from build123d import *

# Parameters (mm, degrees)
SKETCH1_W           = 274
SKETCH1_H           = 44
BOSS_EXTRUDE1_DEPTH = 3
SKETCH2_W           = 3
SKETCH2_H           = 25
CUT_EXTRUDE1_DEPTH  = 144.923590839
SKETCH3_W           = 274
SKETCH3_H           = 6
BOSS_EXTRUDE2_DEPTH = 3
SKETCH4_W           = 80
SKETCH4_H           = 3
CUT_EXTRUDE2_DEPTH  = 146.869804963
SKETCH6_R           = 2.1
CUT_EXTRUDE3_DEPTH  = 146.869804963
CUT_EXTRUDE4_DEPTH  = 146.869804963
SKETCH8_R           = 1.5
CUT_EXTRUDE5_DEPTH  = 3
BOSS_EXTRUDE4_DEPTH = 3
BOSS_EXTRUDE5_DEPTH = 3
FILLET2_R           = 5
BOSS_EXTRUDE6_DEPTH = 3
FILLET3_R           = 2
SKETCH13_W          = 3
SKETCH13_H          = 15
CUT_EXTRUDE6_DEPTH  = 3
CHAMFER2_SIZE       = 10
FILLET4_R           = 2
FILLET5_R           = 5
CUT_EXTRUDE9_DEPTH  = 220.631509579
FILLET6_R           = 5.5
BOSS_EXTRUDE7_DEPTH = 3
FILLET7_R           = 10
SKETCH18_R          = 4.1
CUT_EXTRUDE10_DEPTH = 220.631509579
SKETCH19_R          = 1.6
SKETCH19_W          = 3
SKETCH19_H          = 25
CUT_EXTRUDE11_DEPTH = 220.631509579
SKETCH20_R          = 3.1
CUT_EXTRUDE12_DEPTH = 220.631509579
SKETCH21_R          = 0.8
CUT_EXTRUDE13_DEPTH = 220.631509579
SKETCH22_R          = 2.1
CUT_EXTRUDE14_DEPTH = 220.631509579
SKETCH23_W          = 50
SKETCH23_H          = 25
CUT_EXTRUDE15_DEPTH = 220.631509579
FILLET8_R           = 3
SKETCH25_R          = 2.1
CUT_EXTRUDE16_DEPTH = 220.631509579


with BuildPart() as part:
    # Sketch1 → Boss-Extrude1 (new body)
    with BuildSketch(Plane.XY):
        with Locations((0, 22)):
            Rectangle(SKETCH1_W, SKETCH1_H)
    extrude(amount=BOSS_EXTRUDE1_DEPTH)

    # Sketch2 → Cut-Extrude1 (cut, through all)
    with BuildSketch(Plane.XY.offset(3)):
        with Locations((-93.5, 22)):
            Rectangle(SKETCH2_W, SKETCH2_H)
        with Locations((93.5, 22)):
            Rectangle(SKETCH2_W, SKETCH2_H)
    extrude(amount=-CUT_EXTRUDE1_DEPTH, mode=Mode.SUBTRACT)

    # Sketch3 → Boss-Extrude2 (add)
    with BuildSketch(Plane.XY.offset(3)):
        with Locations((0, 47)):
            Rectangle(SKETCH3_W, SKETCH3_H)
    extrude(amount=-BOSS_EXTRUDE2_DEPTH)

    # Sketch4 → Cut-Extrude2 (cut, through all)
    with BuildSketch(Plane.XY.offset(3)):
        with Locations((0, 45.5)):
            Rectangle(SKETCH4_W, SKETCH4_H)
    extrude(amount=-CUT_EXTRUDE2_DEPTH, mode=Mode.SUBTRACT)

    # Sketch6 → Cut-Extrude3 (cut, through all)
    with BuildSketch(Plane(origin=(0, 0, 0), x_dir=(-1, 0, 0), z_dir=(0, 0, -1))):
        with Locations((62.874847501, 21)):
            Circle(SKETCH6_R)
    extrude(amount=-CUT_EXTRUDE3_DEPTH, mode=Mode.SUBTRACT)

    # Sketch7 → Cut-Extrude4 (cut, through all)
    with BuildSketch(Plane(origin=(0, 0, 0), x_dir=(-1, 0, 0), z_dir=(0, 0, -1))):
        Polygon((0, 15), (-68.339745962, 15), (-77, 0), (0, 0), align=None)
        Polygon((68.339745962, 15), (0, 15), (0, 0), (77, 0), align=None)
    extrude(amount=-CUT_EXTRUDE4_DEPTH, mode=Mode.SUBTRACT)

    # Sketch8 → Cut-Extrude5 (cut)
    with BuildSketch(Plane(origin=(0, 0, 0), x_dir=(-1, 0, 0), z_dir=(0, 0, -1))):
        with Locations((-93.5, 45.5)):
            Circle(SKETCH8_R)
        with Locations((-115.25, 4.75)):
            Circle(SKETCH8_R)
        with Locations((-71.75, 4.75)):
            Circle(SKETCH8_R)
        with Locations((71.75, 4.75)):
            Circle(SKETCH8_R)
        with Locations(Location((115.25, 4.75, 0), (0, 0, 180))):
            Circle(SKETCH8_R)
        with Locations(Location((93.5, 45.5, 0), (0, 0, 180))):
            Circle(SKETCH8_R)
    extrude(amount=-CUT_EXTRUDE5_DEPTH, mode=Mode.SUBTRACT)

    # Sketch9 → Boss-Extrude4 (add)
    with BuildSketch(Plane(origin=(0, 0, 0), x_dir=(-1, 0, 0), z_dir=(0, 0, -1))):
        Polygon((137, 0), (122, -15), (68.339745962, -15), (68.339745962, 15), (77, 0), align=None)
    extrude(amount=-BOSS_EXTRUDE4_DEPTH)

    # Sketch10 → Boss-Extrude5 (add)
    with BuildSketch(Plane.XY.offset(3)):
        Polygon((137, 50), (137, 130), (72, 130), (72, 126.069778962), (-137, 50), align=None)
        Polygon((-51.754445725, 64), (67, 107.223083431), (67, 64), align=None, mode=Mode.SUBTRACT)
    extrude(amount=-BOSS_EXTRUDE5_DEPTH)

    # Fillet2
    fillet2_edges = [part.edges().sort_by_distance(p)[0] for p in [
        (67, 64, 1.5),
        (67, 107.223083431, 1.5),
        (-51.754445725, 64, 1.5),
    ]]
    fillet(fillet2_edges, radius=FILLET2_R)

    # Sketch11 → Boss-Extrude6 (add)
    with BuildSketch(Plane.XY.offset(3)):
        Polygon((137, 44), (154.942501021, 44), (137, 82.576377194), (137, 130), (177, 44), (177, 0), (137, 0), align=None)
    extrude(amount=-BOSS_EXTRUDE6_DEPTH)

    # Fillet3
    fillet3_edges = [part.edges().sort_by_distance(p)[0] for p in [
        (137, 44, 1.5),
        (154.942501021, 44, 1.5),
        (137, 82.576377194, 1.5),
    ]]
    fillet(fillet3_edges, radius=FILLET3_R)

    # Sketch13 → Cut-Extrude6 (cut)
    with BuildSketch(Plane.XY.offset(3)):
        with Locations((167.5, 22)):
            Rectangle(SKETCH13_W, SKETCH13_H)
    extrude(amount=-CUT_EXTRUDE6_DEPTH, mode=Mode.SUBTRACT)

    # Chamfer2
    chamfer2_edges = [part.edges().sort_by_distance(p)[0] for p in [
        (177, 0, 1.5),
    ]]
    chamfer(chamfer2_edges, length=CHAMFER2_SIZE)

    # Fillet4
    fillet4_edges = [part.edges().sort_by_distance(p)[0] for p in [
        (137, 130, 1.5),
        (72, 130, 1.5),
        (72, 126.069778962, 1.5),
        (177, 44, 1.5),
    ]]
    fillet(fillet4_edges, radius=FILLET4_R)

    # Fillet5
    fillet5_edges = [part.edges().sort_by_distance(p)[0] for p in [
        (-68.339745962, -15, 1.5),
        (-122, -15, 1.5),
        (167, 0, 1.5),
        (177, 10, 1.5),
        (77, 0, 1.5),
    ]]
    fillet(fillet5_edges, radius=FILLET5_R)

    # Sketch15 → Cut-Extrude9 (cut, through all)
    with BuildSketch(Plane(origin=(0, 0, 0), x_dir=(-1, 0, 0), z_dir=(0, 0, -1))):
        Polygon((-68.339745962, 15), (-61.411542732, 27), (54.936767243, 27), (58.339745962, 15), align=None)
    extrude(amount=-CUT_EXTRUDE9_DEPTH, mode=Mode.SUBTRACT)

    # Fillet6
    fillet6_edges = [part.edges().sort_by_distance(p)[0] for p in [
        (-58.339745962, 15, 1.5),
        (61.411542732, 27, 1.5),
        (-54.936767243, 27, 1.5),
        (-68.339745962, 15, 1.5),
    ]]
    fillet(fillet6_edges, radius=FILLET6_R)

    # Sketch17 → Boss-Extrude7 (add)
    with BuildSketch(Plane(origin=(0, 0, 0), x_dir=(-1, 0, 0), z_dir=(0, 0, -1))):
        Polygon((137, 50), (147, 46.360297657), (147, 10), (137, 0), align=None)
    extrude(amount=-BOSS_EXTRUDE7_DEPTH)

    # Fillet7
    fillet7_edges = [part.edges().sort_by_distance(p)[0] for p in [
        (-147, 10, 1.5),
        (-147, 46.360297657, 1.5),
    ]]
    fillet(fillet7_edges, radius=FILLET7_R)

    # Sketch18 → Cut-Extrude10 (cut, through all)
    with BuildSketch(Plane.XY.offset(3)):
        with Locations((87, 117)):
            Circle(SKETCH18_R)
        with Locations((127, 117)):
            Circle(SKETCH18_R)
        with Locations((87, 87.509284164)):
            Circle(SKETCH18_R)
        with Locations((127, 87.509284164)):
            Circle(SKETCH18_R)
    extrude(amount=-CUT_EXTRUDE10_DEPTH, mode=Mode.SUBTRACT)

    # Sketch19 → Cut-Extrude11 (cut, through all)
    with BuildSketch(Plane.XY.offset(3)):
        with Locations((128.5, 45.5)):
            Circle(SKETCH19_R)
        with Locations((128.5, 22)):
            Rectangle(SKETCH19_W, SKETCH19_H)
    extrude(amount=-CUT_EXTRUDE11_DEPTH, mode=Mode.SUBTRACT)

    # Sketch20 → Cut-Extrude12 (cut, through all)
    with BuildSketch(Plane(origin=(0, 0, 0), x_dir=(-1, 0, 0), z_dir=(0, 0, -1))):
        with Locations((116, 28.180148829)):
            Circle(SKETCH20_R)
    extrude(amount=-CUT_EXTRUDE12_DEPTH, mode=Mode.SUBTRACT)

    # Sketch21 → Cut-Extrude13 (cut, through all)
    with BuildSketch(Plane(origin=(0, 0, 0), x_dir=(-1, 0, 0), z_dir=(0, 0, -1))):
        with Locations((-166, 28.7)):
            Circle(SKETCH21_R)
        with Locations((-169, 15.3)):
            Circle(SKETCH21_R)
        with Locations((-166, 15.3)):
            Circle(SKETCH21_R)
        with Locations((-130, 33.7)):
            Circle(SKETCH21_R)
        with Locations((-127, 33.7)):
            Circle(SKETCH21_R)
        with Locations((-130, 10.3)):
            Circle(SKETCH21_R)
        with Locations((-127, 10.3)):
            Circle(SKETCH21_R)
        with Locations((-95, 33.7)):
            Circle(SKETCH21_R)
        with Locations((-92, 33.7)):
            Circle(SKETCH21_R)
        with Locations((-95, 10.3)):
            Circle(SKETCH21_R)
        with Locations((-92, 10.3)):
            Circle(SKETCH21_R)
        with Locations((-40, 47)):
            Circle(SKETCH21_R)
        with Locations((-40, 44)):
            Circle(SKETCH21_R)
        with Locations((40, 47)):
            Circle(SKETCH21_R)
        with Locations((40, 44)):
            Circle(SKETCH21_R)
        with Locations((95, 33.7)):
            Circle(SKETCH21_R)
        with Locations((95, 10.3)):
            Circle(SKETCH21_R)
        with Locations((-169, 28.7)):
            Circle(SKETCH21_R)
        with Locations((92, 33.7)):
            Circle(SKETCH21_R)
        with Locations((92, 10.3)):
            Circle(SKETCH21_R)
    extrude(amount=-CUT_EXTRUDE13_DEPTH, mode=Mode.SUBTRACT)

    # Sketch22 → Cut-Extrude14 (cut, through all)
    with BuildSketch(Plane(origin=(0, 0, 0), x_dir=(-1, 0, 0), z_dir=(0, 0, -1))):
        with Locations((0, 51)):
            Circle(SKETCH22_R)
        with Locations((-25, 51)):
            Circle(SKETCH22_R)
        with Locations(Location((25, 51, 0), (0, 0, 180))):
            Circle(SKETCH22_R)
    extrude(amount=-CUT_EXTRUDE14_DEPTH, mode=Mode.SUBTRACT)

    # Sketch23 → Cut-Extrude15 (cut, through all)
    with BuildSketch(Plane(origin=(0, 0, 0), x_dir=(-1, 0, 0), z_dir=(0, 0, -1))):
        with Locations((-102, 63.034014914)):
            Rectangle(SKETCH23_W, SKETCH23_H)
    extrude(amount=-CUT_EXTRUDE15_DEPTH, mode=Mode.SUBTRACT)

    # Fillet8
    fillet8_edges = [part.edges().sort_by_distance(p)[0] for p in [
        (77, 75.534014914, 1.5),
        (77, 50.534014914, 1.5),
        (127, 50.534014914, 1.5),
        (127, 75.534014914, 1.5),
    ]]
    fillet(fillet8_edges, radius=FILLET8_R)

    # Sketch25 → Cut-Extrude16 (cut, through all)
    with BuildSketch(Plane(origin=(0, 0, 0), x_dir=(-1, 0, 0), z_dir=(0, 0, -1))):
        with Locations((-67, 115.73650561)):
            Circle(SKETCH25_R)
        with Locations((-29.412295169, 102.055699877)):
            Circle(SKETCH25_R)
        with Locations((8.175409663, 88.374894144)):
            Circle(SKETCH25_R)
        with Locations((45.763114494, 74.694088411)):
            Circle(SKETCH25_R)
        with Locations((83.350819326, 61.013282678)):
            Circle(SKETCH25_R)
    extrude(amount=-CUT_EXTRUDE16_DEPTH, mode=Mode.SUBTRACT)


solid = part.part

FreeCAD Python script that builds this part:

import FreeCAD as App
import Part
import Sketcher

V = App.Vector
Q = App.Units.Quantity


def edges_at(feature, points):
    """Names of the edges that pass closest to the given points."""
    edges = feature.Shape.Edges
    near = lambda p: min(range(len(edges)), key=lambda i: edges[i].distToShape(Part.Vertex(*p))[0])
    return sorted({f"Edge{near(p) + 1}" for p in points})

doc = App.newDocument("Part")
body = doc.addObject("PartDesign::Body", "Body")

# Sketch on XY plane
sketch1 = doc.addObject("Sketcher::SketchObject", "Sketch")
body.addObject(sketch1)
sketch1.AttachmentSupport = (doc.XY_Plane, [""])
sketch1.MapMode = "FlatFace"
sketch1.addGeometry(Part.LineSegment(V(-137, 44, 0), V(-137, 0, 0)), False)
sketch1.addGeometry(Part.LineSegment(V(-137, 0, 0), V(137, 0, 0)), False)
sketch1.addGeometry(Part.LineSegment(V(137, 0, 0), V(137, 44, 0)), False)
sketch1.addGeometry(Part.LineSegment(V(137, 44, 0), V(-137, 44, 0)), False)
sketch1.addConstraint(Sketcher.Constraint("Coincident", 0, 2, 1, 1))
sketch1.addConstraint(Sketcher.Constraint("Coincident", 1, 2, 2, 1))
sketch1.addConstraint(Sketcher.Constraint("Coincident", 2, 2, 3, 1))
sketch1.addConstraint(Sketcher.Constraint("Coincident", 3, 2, 0, 1))
sketch1.addConstraint(Sketcher.Constraint("Vertical", 0))
sketch1.addConstraint(Sketcher.Constraint("Horizontal", 1))
sketch1.addConstraint(Sketcher.Constraint("Vertical", 2))
sketch1.addConstraint(Sketcher.Constraint("Horizontal", 3))
sketch1.addConstraint(Sketcher.Constraint("Symmetric", 0, 2, 1, 2, -1, 1))
sketch1.addConstraint(Sketcher.Constraint("DistanceX", 1, 1, 1, 2, 274.0))
sketch1.addConstraint(Sketcher.Constraint("DistanceY", 0, 2, 0, 1, 44.0))
pad1 = doc.addObject("PartDesign::Pad", "Pad")
body.addObject(pad1)
pad1.Profile = sketch1
pad1.Length = 3

# Sketch on XY plane
sketch2 = doc.addObject("Sketcher::SketchObject", "Sketch001")
body.addObject(sketch2)
sketch2.AttachmentSupport = (doc.XY_Plane, [""])
sketch2.MapMode = "FlatFace"
sketch2.AttachmentOffset = App.Placement(V(0, 0, 3), App.Rotation())
sketch2.addGeometry(Part.LineSegment(V(-95, 34.5, 0), V(-95, 9.5, 0)), False)
sketch2.addGeometry(Part.LineSegment(V(-95, 9.5, 0), V(-92, 9.5, 0)), False)
sketch2.addGeometry(Part.LineSegment(V(-92, 9.5, 0), V(-92, 34.5, 0)), False)
sketch2.addGeometry(Part.LineSegment(V(-92, 34.5, 0), V(-95, 34.5, 0)), False)
sketch2.addGeometry(Part.LineSegment(V(92, 34.5, 0), V(92, 9.5, 0)), False)
sketch2.addGeometry(Part.LineSegment(V(92, 9.5, 0), V(95, 9.5, 0)), False)
sketch2.addGeometry(Part.LineSegment(V(95, 9.5, 0), V(95, 34.5, 0)), False)
sketch2.addGeometry(Part.LineSegment(V(95, 34.5, 0), V(92, 34.5, 0)), False)
sketch2.addConstraint(Sketcher.Constraint("Coincident", 0, 2, 1, 1))
sketch2.addConstraint(Sketcher.Constraint("Coincident", 1, 2, 2, 1))
sketch2.addConstraint(Sketcher.Constraint("Coincident", 2, 2, 3, 1))
sketch2.addConstraint(Sketcher.Constraint("Coincident", 3, 2, 0, 1))
sketch2.addConstraint(Sketcher.Constraint("Coincident", 4, 2, 5, 1))
sketch2.addConstraint(Sketcher.Constraint("Coincident", 5, 2, 6, 1))
sketch2.addConstraint(Sketcher.Constraint("Coincident", 6, 2, 7, 1))
sketch2.addConstraint(Sketcher.Constraint("Coincident", 7, 2, 4, 1))
sketch2.addConstraint(Sketcher.Constraint("Vertical", 0))
sketch2.addConstraint(Sketcher.Constraint("Horizontal", 1))
sketch2.addConstraint(Sketcher.Constraint("Vertical", 2))
sketch2.addConstraint(Sketcher.Constraint("Horizontal", 3))
sketch2.addConstraint(Sketcher.Constraint("Vertical", 4))
sketch2.addConstraint(Sketcher.Constraint("Horizontal", 5))
sketch2.addConstraint(Sketcher.Constraint("Vertical", 6))
sketch2.addConstraint(Sketcher.Constraint("Horizontal", 7))
sketch2.addConstraint(Sketcher.Constraint("Symmetric", 1, 2, 4, 2, -2))
sketch2.addConstraint(Sketcher.Constraint("Symmetric", 3, 2, 6, 2, -2))
sketch2.addConstraint(Sketcher.Constraint("DistanceX", 1, 1, 1, 2, 3.0))
sketch2.addConstraint(Sketcher.Constraint("DistanceY", 0, 2, 0, 1, 25.0))
sketch2.addConstraint(Sketcher.Constraint("DistanceX", 0, 2, -1, 1, 95.0))
sketch2.addConstraint(Sketcher.Constraint("DistanceY", -1, 1, 0, 2, 9.5))
pocket1 = doc.addObject("PartDesign::Pocket", "Pocket")
body.addObject(pocket1)
pocket1.Profile = sketch2
pocket1.Type = "ThroughAll"

# Sketch on XY plane
sketch3 = doc.addObject("Sketcher::SketchObject", "Sketch002")
body.addObject(sketch3)
sketch3.AttachmentSupport = (doc.XY_Plane, [""])
sketch3.MapMode = "FlatFace"
sketch3.AttachmentOffset = App.Placement(V(0, 0, 3), App.Rotation())
sketch3.addGeometry(Part.LineSegment(V(-137, 50, 0), V(-137, 44, 0)), False)
sketch3.addGeometry(Part.LineSegment(V(-137, 44, 0), V(137, 44, 0)), False)
sketch3.addGeometry(Part.LineSegment(V(137, 44, 0), V(137, 50, 0)), False)
sketch3.addGeometry(Part.LineSegment(V(137, 50, 0), V(-137, 50, 0)), False)
sketch3.addConstraint(Sketcher.Constraint("Coincident", 0, 2, 1, 1))
sketch3.addConstraint(Sketcher.Constraint("Coincident", 1, 2, 2, 1))
sketch3.addConstraint(Sketcher.Constraint("Coincident", 2, 2, 3, 1))
sketch3.addConstraint(Sketcher.Constraint("Coincident", 3, 2, 0, 1))
sketch3.addConstraint(Sketcher.Constraint("Vertical", 0))
sketch3.addConstraint(Sketcher.Constraint("Horizontal", 1))
sketch3.addConstraint(Sketcher.Constraint("Vertical", 2))
sketch3.addConstraint(Sketcher.Constraint("Horizontal", 3))
sketch3.addConstraint(Sketcher.Constraint("DistanceX", 1, 1, 1, 2, 274.0))
sketch3.addConstraint(Sketcher.Constraint("DistanceY", 0, 2, 0, 1, 6.0))
sketch3.addConstraint(Sketcher.Constraint("DistanceX", 0, 2, -1, 1, 137.0))
sketch3.addConstraint(Sketcher.Constraint("DistanceY", -1, 1, 0, 2, 44.0))
pad2 = doc.addObject("PartDesign::Pad", "Pad001")
body.addObject(pad2)
pad2.Profile = sketch3
pad2.Length = 3
pad2.Reversed = True

# Sketch on XY plane
sketch4 = doc.addObject("Sketcher::SketchObject", "Sketch003")
body.addObject(sketch4)
sketch4.AttachmentSupport = (doc.XY_Plane, [""])
sketch4.MapMode = "FlatFace"
sketch4.AttachmentOffset = App.Placement(V(0, 0, 3), App.Rotation())
sketch4.addGeometry(Part.LineSegment(V(-40, 47, 0), V(-40, 44, 0)), False)
sketch4.addGeometry(Part.LineSegment(V(-40, 44, 0), V(40, 44, 0)), False)
sketch4.addGeometry(Part.LineSegment(V(40, 44, 0), V(40, 47, 0)), False)
sketch4.addGeometry(Part.LineSegment(V(40, 47, 0), V(-40, 47, 0)), False)
sketch4.addConstraint(Sketcher.Constraint("Coincident", 0, 2, 1, 1))
sketch4.addConstraint(Sketcher.Constraint("Coincident", 1, 2, 2, 1))
sketch4.addConstraint(Sketcher.Constraint("Coincident", 2, 2, 3, 1))
sketch4.addConstraint(Sketcher.Constraint("Coincident", 3, 2, 0, 1))
sketch4.addConstraint(Sketcher.Constraint("Vertical", 0))
sketch4.addConstraint(Sketcher.Constraint("Horizontal", 1))
sketch4.addConstraint(Sketcher.Constraint("Vertical", 2))
sketch4.addConstraint(Sketcher.Constraint("Horizontal", 3))
sketch4.addConstraint(Sketcher.Constraint("DistanceX", 1, 1, 1, 2, 80.0))
sketch4.addConstraint(Sketcher.Constraint("DistanceY", 0, 2, 0, 1, 3.0))
sketch4.addConstraint(Sketcher.Constraint("DistanceX", 0, 2, -1, 1, 40.0))
sketch4.addConstraint(Sketcher.Constraint("DistanceY", -1, 1, 0, 2, 44.0))
pocket2 = doc.addObject("PartDesign::Pocket", "Pocket001")
body.addObject(pocket2)
pocket2.Profile = sketch4
pocket2.Type = "ThroughAll"

# Sketch on XY plane
sketch5 = doc.addObject("Sketcher::SketchObject", "Sketch004")
body.addObject(sketch5)
sketch5.AttachmentSupport = (doc.XY_Plane, [""])
sketch5.MapMode = "FlatFace"
sketch5.addGeometry(Part.Circle(V(-62.874848, 21, 0), V(0, 0, 1), 2.1), False)
sketch5.addConstraint(Sketcher.Constraint("Diameter", 0, 4.2))
sketch5.addConstraint(Sketcher.Constraint("DistanceY", -1, 1, 0, 3, 21.0))
sketch5.addConstraint(Sketcher.Constraint("DistanceX", 0, 3, -1, 1, 62.874848))
pocket3 = doc.addObject("PartDesign::Pocket", "Pocket002")
body.addObject(pocket3)
pocket3.Profile = sketch5
pocket3.Type = "ThroughAll"
pocket3.Reversed = True

# Sketch on XY plane
sketch6 = doc.addObject("Sketcher::SketchObject", "Sketch005")
body.addObject(sketch6)
sketch6.AttachmentSupport = (doc.XY_Plane, [""])
sketch6.MapMode = "FlatFace"
sketch6.addGeometry(Part.LineSegment(V(68.339746, 15, 0), V(77, 0, 0)), False)
sketch6.addGeometry(Part.LineSegment(V(77, 0, 0), V(-77, 0, 0)), False)
sketch6.addGeometry(Part.LineSegment(V(-77, 0, 0), V(-68.339746, 15, 0)), False)
sketch6.addGeometry(Part.LineSegment(V(-68.339746, 15, 0), V(68.339746, 15, 0)), False)
sketch6.addConstraint(Sketcher.Constraint("Coincident", 0, 2, 1, 1))
sketch6.addConstraint(Sketcher.Constraint("Coincident", 1, 2, 2, 1))
sketch6.addConstraint(Sketcher.Constraint("Coincident", 2, 2, 3, 1))
sketch6.addConstraint(Sketcher.Constraint("Coincident", 3, 2, 0, 1))
sketch6.addConstraint(Sketcher.Constraint("Horizontal", 1))
sketch6.addConstraint(Sketcher.Constraint("Horizontal", 3))
sketch6.addConstraint(Sketcher.Constraint("Symmetric", 0, 2, 1, 2, -1, 1))
sketch6.addConstraint(Sketcher.Constraint("Equal", 0, 2))
sketch6.addConstraint(Sketcher.Constraint("DistanceX", 1, 2, 1, 1, 154.0))
sketch6.addConstraint(Sketcher.Constraint("Angle", 0, Q("-60 deg")))
sketch6.addConstraint(Sketcher.Constraint("DistanceY", -1, 1, 2, 2, 15.0))
pocket4 = doc.addObject("PartDesign::Pocket", "Pocket003")
body.addObject(pocket4)
pocket4.Profile = sketch6
pocket4.Type = "ThroughAll"
pocket4.Reversed = True

# Sketch on XY plane
sketch7 = doc.addObject("Sketcher::SketchObject", "Sketch006")
body.addObject(sketch7)
sketch7.AttachmentSupport = (doc.XY_Plane, [""])
sketch7.MapMode = "FlatFace"
sketch7.addGeometry(Part.Circle(V(93.5, 45.5, 0), V(0, 0, 1), 1.5), False)
sketch7.addGeometry(Part.Circle(V(115.25, 4.75, 0), V(0, 0, 1), 1.5), False)
sketch7.addGeometry(Part.Circle(V(71.75, 4.75, 0), V(0, 0, 1), 1.5), False)
sketch7.addGeometry(Part.Circle(V(-71.75, 4.75, 0), V(0, 0, 1), 1.5), False)
sketch7.addGeometry(Part.Circle(V(-115.25, 4.75, 0), V(0, 0, 1), 1.5), False)
sketch7.addGeometry(Part.Circle(V(-93.5, 45.5, 0), V(0, 0, 1), 1.5), False)
sketch7.addConstraint(Sketcher.Constraint("Equal", 0, 1))
sketch7.addConstraint(Sketcher.Constraint("Equal", 1, 2))
sketch7.addConstraint(Sketcher.Constraint("Equal", 2, 3))
sketch7.addConstraint(Sketcher.Constraint("Equal", 3, 4))
sketch7.addConstraint(Sketcher.Constraint("Equal", 4, 5))
sketch7.addConstraint(Sketcher.Constraint("Symmetric", 2, 3, 3, 3, -2))
sketch7.addConstraint(Sketcher.Constraint("Symmetric", 1, 3, 4, 3, -2))
sketch7.addConstraint(Sketcher.Constraint("Symmetric", 0, 3, 5, 3, -2))
sketch7.addConstraint(Sketcher.Constraint("Horizontal", 1, 3, 2, 3))
sketch7.addConstraint(Sketcher.Constraint("Diameter", 0, 3.0))
sketch7.addConstraint(Sketcher.Constraint("DistanceX", 3, 3, 1, 3, 187.0))
sketch7.addConstraint(Sketcher.Constraint("DistanceX", 5, 3, 0, 3, 187.0))
sketch7.addConstraint(Sketcher.Constraint("DistanceY", -1, 1, 0, 3, 45.5))
sketch7.addConstraint(Sketcher.Constraint("DistanceX", 2, 3, 1, 3, 43.5))
sketch7.addConstraint(Sketcher.Constraint("DistanceY", -1, 1, 1, 3, 4.75))
pocket5 = doc.addObject("PartDesign::Pocket", "Pocket004")
body.addObject(pocket5)
pocket5.Profile = sketch7
pocket5.Length = 3
pocket5.Reversed = True

# Sketch on XY plane
sketch8 = doc.addObject("Sketcher::SketchObject", "Sketch007")
body.addObject(sketch8)
sketch8.AttachmentSupport = (doc.XY_Plane, [""])
sketch8.MapMode = "FlatFace"
sketch8.addGeometry(Part.LineSegment(V(-122, -15, 0), V(-137, 0, 0)), False)
sketch8.addGeometry(Part.LineSegment(V(-137, 0, 0), V(-77, 0, 0)), False)
sketch8.addGeometry(Part.LineSegment(V(-77, 0, 0), V(-68.339746, 15, 0)), False)
sketch8.addGeometry(Part.LineSegment(V(-68.339746, 15, 0), V(-68.339746, -15, 0)), False)
sketch8.addGeometry(Part.LineSegment(V(-68.339746, -15, 0), V(-122, -15, 0)), False)
sketch8.addConstraint(Sketcher.Constraint("Coincident", 0, 2, 1, 1))
sketch8.addConstraint(Sketcher.Constraint("Coincident", 1, 2, 2, 1))
sketch8.addConstraint(Sketcher.Constraint("Coincident", 2, 2, 3, 1))
sketch8.addConstraint(Sketcher.Constraint("Coincident", 3, 2, 4, 1))
sketch8.addConstraint(Sketcher.Constraint("Coincident", 4, 2, 0, 1))
sketch8.addConstraint(Sketcher.Constraint("Horizontal", 1))
sketch8.addConstraint(Sketcher.Constraint("Vertical", 3))
sketch8.addConstraint(Sketcher.Constraint("Horizontal", 4))
sketch8.addConstraint(Sketcher.Constraint("PointOnObject", 0, 2, -1))
sketch8.addConstraint(Sketcher.Constraint("DistanceX", 1, 1, 1, 2, 60.0))
sketch8.addConstraint(Sketcher.Constraint("DistanceY", 3, 2, 3, 1, 30.0))
sketch8.addConstraint(Sketcher.Constraint("Angle", 0, Q("135 deg")))
sketch8.addConstraint(Sketcher.Constraint("Angle", 2, Q("60 deg")))
sketch8.addConstraint(Sketcher.Constraint("DistanceX", 0, 2, -1, 1, 137.0))
sketch8.addConstraint(Sketcher.Constraint("DistanceY", -1, 1, 2, 2, 15.0))
pad3 = doc.addObject("PartDesign::Pad", "Pad002")
body.addObject(pad3)
pad3.Profile = sketch8
pad3.Length = 3

# Sketch on XY plane
sketch9 = doc.addObject("Sketcher::SketchObject", "Sketch008")
body.addObject(sketch9)
sketch9.AttachmentSupport = (doc.XY_Plane, [""])
sketch9.MapMode = "FlatFace"
sketch9.AttachmentOffset = App.Placement(V(0, 0, 3), App.Rotation())
sketch9.addGeometry(Part.LineSegment(V(137, 50, 0), V(137, 130, 0)), False)
sketch9.addGeometry(Part.LineSegment(V(137, 130, 0), V(72, 130, 0)), False)
sketch9.addGeometry(Part.LineSegment(V(72, 130, 0), V(72, 126.069779, 0)), False)
sketch9.addGeometry(Part.LineSegment(V(72, 126.069779, 0), V(-137, 50, 0)), False)
sketch9.addGeometry(Part.LineSegment(V(-137, 50, 0), V(137, 50, 0)), False)
sketch9.addGeometry(Part.LineSegment(V(67, 64, 0), V(-51.754446, 64, 0)), False)
sketch9.addGeometry(Part.LineSegment(V(-51.754446, 64, 0), V(67, 107.223083, 0)), False)
sketch9.addGeometry(Part.LineSegment(V(67, 107.223083, 0), V(67, 64, 0)), False)
sketch9.addConstraint(Sketcher.Constraint("Coincident", 0, 2, 1, 1))
sketch9.addConstraint(Sketcher.Constraint("Coincident", 1, 2, 2, 1))
sketch9.addConstraint(Sketcher.Constraint("Coincident", 2, 2, 3, 1))
sketch9.addConstraint(Sketcher.Constraint("Coincident", 3, 2, 4, 1))
sketch9.addConstraint(Sketcher.Constraint("Coincident", 4, 2, 0, 1))
sketch9.addConstraint(Sketcher.Constraint("Coincident", 5, 2, 6, 1))
sketch9.addConstraint(Sketcher.Constraint("Coincident", 6, 2, 7, 1))
sketch9.addConstraint(Sketcher.Constraint("Coincident", 7, 2, 5, 1))
sketch9.addConstraint(Sketcher.Constraint("Vertical", 0))
sketch9.addConstraint(Sketcher.Constraint("Horizontal", 1))
sketch9.addConstraint(Sketcher.Constraint("Vertical", 2))
sketch9.addConstraint(Sketcher.Constraint("Horizontal", 4))
sketch9.addConstraint(Sketcher.Constraint("Horizontal", 5))
sketch9.addConstraint(Sketcher.Constraint("Vertical", 7))
sketch9.addConstraint(Sketcher.Constraint("Parallel", 3, 6))
sketch9.addConstraint(Sketcher.Constraint("DistanceX", 1, 2, 1, 1, 65.0))
sketch9.addConstraint(Sketcher.Constraint("DistanceX", 4, 1, 4, 2, 274.0))
sketch9.addConstraint(Sketcher.Constraint("DistanceY", 0, 1, 0, 2, 80.0))
sketch9.addConstraint(Sketcher.Constraint("Angle", 3, Q("-160 deg")))
sketch9.addConstraint(Sketcher.Constraint("DistanceX", -1, 1, 0, 2, 137.0))
sketch9.addConstraint(Sketcher.Constraint("DistanceY", -1, 1, 0, 2, 130.0))
sketch9.addConstraint(Sketcher.Constraint("DistanceY", -1, 1, 5, 2, 64.0))
sketch9.addConstraint(Sketcher.Constraint("DistanceX", -1, 1, 6, 2, 67.0))
sketch9.addConstraint(Sketcher.Constraint("Distance", 6, 126.375842))
pad4 = doc.addObject("PartDesign::Pad", "Pad003")
body.addObject(pad4)
pad4.Profile = sketch9
pad4.Length = 3
pad4.Reversed = True
doc.recompute()

fillet = doc.addObject("PartDesign::Fillet", "Fillet")
body.addObject(fillet)
fillet.Base = (pad4, edges_at(pad4, [(67, 64, 1.5), (67, 107.223, 1.5), (-51.754, 64, 1.5)]))
fillet.Radius = 5

# Sketch on XY plane
sketch10 = doc.addObject("Sketcher::SketchObject", "Sketch009")
body.addObject(sketch10)
sketch10.AttachmentSupport = (doc.XY_Plane, [""])
sketch10.MapMode = "FlatFace"
sketch10.AttachmentOffset = App.Placement(V(0, 0, 3), App.Rotation())
sketch10.addGeometry(Part.LineSegment(V(154.942501, 44, 0), V(137, 44, 0)), False)
sketch10.addGeometry(Part.LineSegment(V(137, 44, 0), V(137, 0, 0)), False)
sketch10.addGeometry(Part.LineSegment(V(137, 0, 0), V(177, 0, 0)), False)
sketch10.addGeometry(Part.LineSegment(V(177, 0, 0), V(177, 44, 0)), False)
sketch10.addGeometry(Part.LineSegment(V(177, 44, 0), V(137, 130, 0)), False)
sketch10.addGeometry(Part.LineSegment(V(137, 130, 0), V(137, 82.576377, 0)), False)
sketch10.addGeometry(Part.LineSegment(V(137, 82.576377, 0), V(154.942501, 44, 0)), False)
sketch10.addConstraint(Sketcher.Constraint("Coincident", 0, 2, 1, 1))
sketch10.addConstraint(Sketcher.Constraint("Coincident", 1, 2, 2, 1))
sketch10.addConstraint(Sketcher.Constraint("Coincident", 2, 2, 3, 1))
sketch10.addConstraint(Sketcher.Constraint("Coincident", 3, 2, 4, 1))
sketch10.addConstraint(Sketcher.Constraint("Coincident", 4, 2, 5, 1))
sketch10.addConstraint(Sketcher.Constraint("Coincident", 5, 2, 6, 1))
sketch10.addConstraint(Sketcher.Constraint("Coincident", 6, 2, 0, 1))
sketch10.addConstraint(Sketcher.Constraint("Horizontal", 0))
sketch10.addConstraint(Sketcher.Constraint("Vertical", 1))
sketch10.addConstraint(Sketcher.Constraint("Horizontal", 2))
sketch10.addConstraint(Sketcher.Constraint("Vertical", 3))
sketch10.addConstraint(Sketcher.Constraint("Vertical", 5))
sketch10.addConstraint(Sketcher.Constraint("PointOnObject", 1, 2, -1))
sketch10.addConstraint(Sketcher.Constraint("Parallel", 4, 6))
sketch10.addConstraint(Sketcher.Constraint("Horizontal", 0, 2, 3, 2))
sketch10.addConstraint(Sketcher.Constraint("Vertical", 1, 2, 4, 2))
sketch10.addConstraint(Sketcher.Constraint("DistanceX", 2, 1, 2, 2, 40.0))
sketch10.addConstraint(Sketcher.Constraint("DistanceY", 1, 2, 1, 1, 44.0))
sketch10.addConstraint(Sketcher.Constraint("DistanceX", -1, 1, 0, 2, 137.0))
sketch10.addConstraint(Sketcher.Constraint("DistanceY", -1, 1, 4, 2, 130.0))
sketch10.addConstraint(Sketcher.Constraint("DistanceX", 0, 2, 0, 1, 17.942501))
pad5 = doc.addObject("PartDesign::Pad", "Pad004")
body.addObject(pad5)
pad5.Profile = sketch10
pad5.Length = 3
pad5.Reversed = True
doc.recompute()

fillet2 = doc.addObject("PartDesign::Fillet", "Fillet001")
body.addObject(fillet2)
fillet2.Base = (pad5, edges_at(pad5, [(137, 44, 1.5), (154.943, 44, 1.5), (137, 82.576, 1.5)]))
fillet2.Radius = 2

# Sketch on XY plane
sketch11 = doc.addObject("Sketcher::SketchObject", "Sketch010")
body.addObject(sketch11)
sketch11.AttachmentSupport = (doc.XY_Plane, [""])
sketch11.MapMode = "FlatFace"
sketch11.AttachmentOffset = App.Placement(V(0, 0, 3), App.Rotation())
sketch11.addGeometry(Part.LineSegment(V(166, 29.5, 0), V(166, 14.5, 0)), False)
sketch11.addGeometry(Part.LineSegment(V(166, 14.5, 0), V(169, 14.5, 0)), False)
sketch11.addGeometry(Part.LineSegment(V(169, 14.5, 0), V(169, 29.5, 0)), False)
sketch11.addGeometry(Part.LineSegment(V(169, 29.5, 0), V(166, 29.5, 0)), False)
sketch11.addConstraint(Sketcher.Constraint("Coincident", 0, 2, 1, 1))
sketch11.addConstraint(Sketcher.Constraint("Coincident", 1, 2, 2, 1))
sketch11.addConstraint(Sketcher.Constraint("Coincident", 2, 2, 3, 1))
sketch11.addConstraint(Sketcher.Constraint("Coincident", 3, 2, 0, 1))
sketch11.addConstraint(Sketcher.Constraint("Vertical", 0))
sketch11.addConstraint(Sketcher.Constraint("Horizontal", 1))
sketch11.addConstraint(Sketcher.Constraint("Vertical", 2))
sketch11.addConstraint(Sketcher.Constraint("Horizontal", 3))
sketch11.addConstraint(Sketcher.Constraint("DistanceX", 1, 1, 1, 2, 3.0))
sketch11.addConstraint(Sketcher.Constraint("DistanceY", 0, 2, 0, 1, 15.0))
sketch11.addConstraint(Sketcher.Constraint("DistanceX", -1, 1, 0, 2, 166.0))
sketch11.addConstraint(Sketcher.Constraint("DistanceY", -1, 1, 0, 2, 14.5))
pocket6 = doc.addObject("PartDesign::Pocket", "Pocket005")
body.addObject(pocket6)
pocket6.Profile = sketch11
pocket6.Length = 3
doc.recompute()

chamfer = doc.addObject("PartDesign::Chamfer", "Chamfer")
body.addObject(chamfer)
chamfer.Base = (pocket6, edges_at(pocket6, [(177, 0, 1.5)]))
chamfer.Size = 10
doc.recompute()

fillet3 = doc.addObject("PartDesign::Fillet", "Fillet002")
body.addObject(fillet3)
fillet3.Base = (chamfer, edges_at(chamfer, [
    (137, 130, 1.5),
    (72, 130, 1.5),
    (72, 126.07, 1.5),
    (177, 44, 1.5),
]))
fillet3.Radius = 2
doc.recompute()

fillet4 = doc.addObject("PartDesign::Fillet", "Fillet003")
body.addObject(fillet4)
fillet4.Base = (fillet3, edges_at(fillet3, [
    (-68.34, -15, 1.5),
    (-122, -15, 1.5),
    (167, 0, 1.5),
    (177, 10, 1.5),
    (77, 0, 1.5),
]))
fillet4.Radius = 5

# Sketch on XY plane
sketch12 = doc.addObject("Sketcher::SketchObject", "Sketch011")
body.addObject(sketch12)
sketch12.AttachmentSupport = (doc.XY_Plane, [""])
sketch12.MapMode = "FlatFace"
sketch12.addGeometry(Part.LineSegment(V(61.411543, 27, 0), V(68.339746, 15, 0)), False)
sketch12.addGeometry(Part.LineSegment(V(68.339746, 15, 0), V(-58.339746, 15, 0)), False)
sketch12.addGeometry(Part.LineSegment(V(-58.339746, 15, 0), V(-54.936767, 27, 0)), False)
sketch12.addGeometry(Part.LineSegment(V(-54.936767, 27, 0), V(61.411543, 27, 0)), False)
sketch12.addConstraint(Sketcher.Constraint("Coincident", 0, 2, 1, 1))
sketch12.addConstraint(Sketcher.Constraint("Coincident", 1, 2, 2, 1))
sketch12.addConstraint(Sketcher.Constraint("Coincident", 2, 2, 3, 1))
sketch12.addConstraint(Sketcher.Constraint("Coincident", 3, 2, 0, 1))
sketch12.addConstraint(Sketcher.Constraint("Horizontal", 1))
sketch12.addConstraint(Sketcher.Constraint("Horizontal", 3))
sketch12.addConstraint(Sketcher.Constraint("Angle", 0, Q("-60 deg")))
sketch12.addConstraint(Sketcher.Constraint("DistanceY", -1, 1, 0, 2, 15.0))
sketch12.addConstraint(Sketcher.Constraint("DistanceY", -1, 1, 2, 2, 27.0))
sketch12.addConstraint(Sketcher.Constraint("DistanceX", 1, 2, 1, 1, 126.679492))
sketch12.addConstraint(Sketcher.Constraint("DistanceX", 3, 1, 3, 2, 116.34831))
sketch12.addConstraint(Sketcher.Constraint("DistanceX", -1, 1, 0, 2, 68.339746))
pocket7 = doc.addObject("PartDesign::Pocket", "Pocket006")
body.addObject(pocket7)
pocket7.Profile = sketch12
pocket7.Type = "ThroughAll"
pocket7.Reversed = True
doc.recompute()

fillet5 = doc.addObject("PartDesign::Fillet", "Fillet004")
body.addObject(fillet5)
fillet5.Base = (pocket7, edges_at(pocket7, [
    (-58.34, 15, 1.5),
    (61.412, 27, 1.5),
    (-54.937, 27, 1.5),
    (-68.34, 15, 1.5),
]))
fillet5.Radius = 5.5

# Sketch on XY plane
sketch13 = doc.addObject("Sketcher::SketchObject", "Sketch012")
body.addObject(sketch13)
sketch13.AttachmentSupport = (doc.XY_Plane, [""])
sketch13.MapMode = "FlatFace"
sketch13.addGeometry(Part.LineSegment(V(-147, 46.360298, 0), V(-137, 50, 0)), False)
sketch13.addGeometry(Part.LineSegment(V(-137, 50, 0), V(-137, 0, 0)), False)
sketch13.addGeometry(Part.LineSegment(V(-137, 0, 0), V(-147, 10, 0)), False)
sketch13.addGeometry(Part.LineSegment(V(-147, 10, 0), V(-147, 46.360298, 0)), False)
sketch13.addConstraint(Sketcher.Constraint("Coincident", 0, 2, 1, 1))
sketch13.addConstraint(Sketcher.Constraint("Coincident", 1, 2, 2, 1))
sketch13.addConstraint(Sketcher.Constraint("Coincident", 2, 2, 3, 1))
sketch13.addConstraint(Sketcher.Constraint("Coincident", 3, 2, 0, 1))
sketch13.addConstraint(Sketcher.Constraint("Vertical", 1))
sketch13.addConstraint(Sketcher.Constraint("Vertical", 3))
sketch13.addConstraint(Sketcher.Constraint("PointOnObject", 1, 2, -1))
sketch13.addConstraint(Sketcher.Constraint("DistanceY", 1, 2, 1, 1, 50.0))
sketch13.addConstraint(Sketcher.Constraint("Angle", 0, Q("20 deg")))
sketch13.addConstraint(Sketcher.Constraint("Angle", 2, Q("135 deg")))
sketch13.addConstraint(Sketcher.Constraint("DistanceX", 0, 2, -1, 1, 137.0))
sketch13.addConstraint(Sketcher.Constraint("DistanceX", 2, 2, -1, 1, 147.0))
pad6 = doc.addObject("PartDesign::Pad", "Pad005")
body.addObject(pad6)
pad6.Profile = sketch13
pad6.Length = 3
doc.recompute()

fillet6 = doc.addObject("PartDesign::Fillet", "Fillet005")
body.addObject(fillet6)
fillet6.Base = (pad6, edges_at(pad6, [(-147, 10, 1.5), (-147, 46.36, 1.5)]))
fillet6.Radius = 10

# Sketch on XY plane
sketch14 = doc.addObject("Sketcher::SketchObject", "Sketch013")
body.addObject(sketch14)
sketch14.AttachmentSupport = (doc.XY_Plane, [""])
sketch14.MapMode = "FlatFace"
sketch14.AttachmentOffset = App.Placement(V(0, 0, 3), App.Rotation())
sketch14.addGeometry(Part.Circle(V(87, 117, 0), V(0, 0, 1), 4.1), False)
sketch14.addGeometry(Part.Circle(V(127, 117, 0), V(0, 0, 1), 4.1), False)
sketch14.addGeometry(Part.Circle(V(87, 87.509284, 0), V(0, 0, 1), 4.1), False)
sketch14.addGeometry(Part.Circle(V(127, 87.509284, 0), V(0, 0, 1), 4.1), False)
sketch14.addConstraint(Sketcher.Constraint("Equal", 0, 1))
sketch14.addConstraint(Sketcher.Constraint("Equal", 1, 2))
sketch14.addConstraint(Sketcher.Constraint("Equal", 2, 3))
sketch14.addConstraint(Sketcher.Constraint("Horizontal", 0, 3, 1, 3))
sketch14.addConstraint(Sketcher.Constraint("Horizontal", 2, 3, 3, 3))
sketch14.addConstraint(Sketcher.Constraint("Vertical", 0, 3, 2, 3))
sketch14.addConstraint(Sketcher.Constraint("Vertical", 1, 3, 3, 3))
sketch14.addConstraint(Sketcher.Constraint("Diameter", 0, 8.2))
sketch14.addConstraint(Sketcher.Constraint("DistanceX", -1, 1, 0, 3, 87.0))
sketch14.addConstraint(Sketcher.Constraint("DistanceY", -1, 1, 0, 3, 117.0))
sketch14.addConstraint(Sketcher.Constraint("DistanceX", -1, 1, 1, 3, 127.0))
sketch14.addConstraint(Sketcher.Constraint("DistanceY", -1, 1, 2, 3, 87.509284))
pocket8 = doc.addObject("PartDesign::Pocket", "Pocket007")
body.addObject(pocket8)
pocket8.Profile = sketch14
pocket8.Type = "ThroughAll"

# Sketch on XY plane
sketch15 = doc.addObject("Sketcher::SketchObject", "Sketch014")
body.addObject(sketch15)
sketch15.AttachmentSupport = (doc.XY_Plane, [""])
sketch15.MapMode = "FlatFace"
sketch15.AttachmentOffset = App.Placement(V(0, 0, 3), App.Rotation())
sketch15.addGeometry(Part.Circle(V(128.5, 45.5, 0), V(0, 0, 1), 1.6), False)
sketch15.addGeometry(Part.LineSegment(V(127, 34.5, 0), V(127, 9.5, 0)), False)
sketch15.addGeometry(Part.LineSegment(V(127, 9.5, 0), V(130, 9.5, 0)), False)
sketch15.addGeometry(Part.LineSegment(V(130, 9.5, 0), V(130, 34.5, 0)), False)
sketch15.addGeometry(Part.LineSegment(V(130, 34.5, 0), V(127, 34.5, 0)), False)
sketch15.addConstraint(Sketcher.Constraint("Coincident", 1, 2, 2, 1))
sketch15.addConstraint(Sketcher.Constraint("Coincident", 2, 2, 3, 1))
sketch15.addConstraint(Sketcher.Constraint("Coincident", 3, 2, 4, 1))
sketch15.addConstraint(Sketcher.Constraint("Coincident", 4, 2, 1, 1))
sketch15.addConstraint(Sketcher.Constraint("Vertical", 1))
sketch15.addConstraint(Sketcher.Constraint("Horizontal", 2))
sketch15.addConstraint(Sketcher.Constraint("Vertical", 3))
sketch15.addConstraint(Sketcher.Constraint("Horizontal", 4))
sketch15.addConstraint(Sketcher.Constraint("Diameter", 0, 3.2))
sketch15.addConstraint(Sketcher.Constraint("DistanceX", 2, 1, 2, 2, 3.0))
sketch15.addConstraint(Sketcher.Constraint("DistanceY", 1, 2, 1, 1, 25.0))
sketch15.addConstraint(Sketcher.Constraint("DistanceX", -1, 1, 1, 2, 127.0))
sketch15.addConstraint(Sketcher.Constraint("DistanceY", 1, 2, 0, 3, 36.0))
sketch15.addConstraint(Sketcher.Constraint("DistanceX", -1, 1, 0, 3, 128.5))
sketch15.addConstraint(Sketcher.Constraint("DistanceY", -1, 1, 0, 3, 45.5))
pocket9 = doc.addObject("PartDesign::Pocket", "Pocket008")
body.addObject(pocket9)
pocket9.Profile = sketch15
pocket9.Type = "ThroughAll"

# Sketch on XY plane
sketch16 = doc.addObject("Sketcher::SketchObject", "Sketch015")
body.addObject(sketch16)
sketch16.AttachmentSupport = (doc.XY_Plane, [""])
sketch16.MapMode = "FlatFace"
sketch16.addGeometry(Part.Circle(V(-116, 28.180149, 0), V(0, 0, 1), 3.1), False)
sketch16.addConstraint(Sketcher.Constraint("Diameter", 0, 6.2))
sketch16.addConstraint(Sketcher.Constraint("DistanceX", 0, 3, -1, 1, 116.0))
sketch16.addConstraint(Sketcher.Constraint("DistanceY", -1, 1, 0, 3, 28.180149))
pocket10 = doc.addObject("PartDesign::Pocket", "Pocket009")
body.addObject(pocket10)
pocket10.Profile = sketch16
pocket10.Type = "ThroughAll"
pocket10.Reversed = True

# Sketch on XY plane
sketch17 = doc.addObject("Sketcher::SketchObject", "Sketch016")
body.addObject(sketch17)
sketch17.AttachmentSupport = (doc.XY_Plane, [""])
sketch17.MapMode = "FlatFace"
sketch17.addGeometry(Part.Circle(V(166, 28.7, 0), V(0, 0, 1), 0.8), False)
sketch17.addGeometry(Part.Circle(V(169, 15.3, 0), V(0, 0, 1), 0.8), False)
sketch17.addGeometry(Part.Circle(V(166, 15.3, 0), V(0, 0, 1), 0.8), False)
sketch17.addGeometry(Part.Circle(V(130, 33.7, 0), V(0, 0, 1), 0.8), False)
sketch17.addGeometry(Part.Circle(V(127, 33.7, 0), V(0, 0, 1), 0.8), False)
sketch17.addGeometry(Part.Circle(V(130, 10.3, 0), V(0, 0, 1), 0.8), False)
sketch17.addGeometry(Part.Circle(V(127, 10.3, 0), V(0, 0, 1), 0.8), False)
sketch17.addGeometry(Part.Circle(V(95, 33.7, 0), V(0, 0, 1), 0.8), False)
sketch17.addGeometry(Part.Circle(V(92, 33.7, 0), V(0, 0, 1), 0.8), False)
sketch17.addGeometry(Part.Circle(V(95, 10.3, 0), V(0, 0, 1), 0.8), False)
sketch17.addGeometry(Part.Circle(V(92, 10.3, 0), V(0, 0, 1), 0.8), False)
sketch17.addGeometry(Part.Circle(V(40, 47, 0), V(0, 0, 1), 0.8), False)
sketch17.addGeometry(Part.Circle(V(40, 44, 0), V(0, 0, 1), 0.8), False)
sketch17.addGeometry(Part.Circle(V(-40, 47, 0), V(0, 0, 1), 0.8), False)
sketch17.addGeometry(Part.Circle(V(-40, 44, 0), V(0, 0, 1), 0.8), False)
sketch17.addGeometry(Part.Circle(V(-95, 33.7, 0), V(0, 0, 1), 0.8), False)
sketch17.addGeometry(Part.Circle(V(-95, 10.3, 0), V(0, 0, 1), 0.8), False)
sketch17.addGeometry(Part.Circle(V(169, 28.7, 0), V(0, 0, 1), 0.8), False)
sketch17.addGeometry(Part.Circle(V(-92, 33.7, 0), V(0, 0, 1), 0.8), False)
sketch17.addGeometry(Part.Circle(V(-92, 10.3, 0), V(0, 0, 1), 0.8), False)
sketch17.addConstraint(Sketcher.Constraint("Equal", 0, 1))
sketch17.addConstraint(Sketcher.Constraint("Equal", 1, 2))
sketch17.addConstraint(Sketcher.Constraint("Equal", 2, 3))
sketch17.addConstraint(Sketcher.Constraint("Equal", 3, 4))
sketch17.addConstraint(Sketcher.Constraint("Equal", 4, 5))
sketch17.addConstraint(Sketcher.Constraint("Equal", 5, 6))
sketch17.addConstraint(Sketcher.Constraint("Equal", 6, 7))
sketch17.addConstraint(Sketcher.Constraint("Equal", 7, 8))
sketch17.addConstraint(Sketcher.Constraint("Equal", 8, 9))
sketch17.addConstraint(Sketcher.Constraint("Equal", 9, 10))
sketch17.addConstraint(Sketcher.Constraint("Equal", 10, 11))
sketch17.addConstraint(Sketcher.Constraint("Equal", 11, 12))
sketch17.addConstraint(Sketcher.Constraint("Equal", 12, 13))
sketch17.addConstraint(Sketcher.Constraint("Equal", 13, 14))
sketch17.addConstraint(Sketcher.Constraint("Equal", 14, 15))
sketch17.addConstraint(Sketcher.Constraint("Equal", 15, 16))
sketch17.addConstraint(Sketcher.Constraint("Equal", 16, 17))
sketch17.addConstraint(Sketcher.Constraint("Equal", 17, 18))
sketch17.addConstraint(Sketcher.Constraint("Equal", 18, 19))
sketch17.addConstraint(Sketcher.Constraint("Symmetric", 11, 3, 13, 3, -2))
sketch17.addConstraint(Sketcher.Constraint("Symmetric", 12, 3, 14, 3, -2))
sketch17.addConstraint(Sketcher.Constraint("Symmetric", 7, 3, 15, 3, -2))
sketch17.addConstraint(Sketcher.Constraint("Symmetric", 9, 3, 16, 3, -2))
sketch17.addConstraint(Sketcher.Constraint("Symmetric", 8, 3, 18, 3, -2))
sketch17.addConstraint(Sketcher.Constraint("Symmetric", 10, 3, 19, 3, -2))
sketch17.addConstraint(Sketcher.Constraint("Horizontal", 1, 3, 2, 3))
sketch17.addConstraint(Sketcher.Constraint("Horizontal", 3, 3, 4, 3))
sketch17.addConstraint(Sketcher.Constraint("Horizontal", 5, 3, 6, 3))
sketch17.addConstraint(Sketcher.Constraint("Horizontal", 4, 3, 7, 3))
sketch17.addConstraint(Sketcher.Constraint("Horizontal", 7, 3, 8, 3))
sketch17.addConstraint(Sketcher.Constraint("Horizontal", 6, 3, 9, 3))
sketch17.addConstraint(Sketcher.Constraint("Horizontal", 9, 3, 10, 3))
sketch17.addConstraint(Sketcher.Constraint("Horizontal", 0, 3, 17, 3))
sketch17.addConstraint(Sketcher.Constraint("Vertical", 0, 3, 2, 3))
sketch17.addConstraint(Sketcher.Constraint("Vertical", 3, 3, 5, 3))
sketch17.addConstraint(Sketcher.Constraint("Vertical", 4, 3, 6, 3))
sketch17.addConstraint(Sketcher.Constraint("Vertical", 7, 3, 9, 3))
sketch17.addConstraint(Sketcher.Constraint("Vertical", 8, 3, 10, 3))
sketch17.addConstraint(Sketcher.Constraint("Vertical", 11, 3, 12, 3))
sketch17.addConstraint(Sketcher.Constraint("Vertical", 1, 3, 17, 3))
sketch17.addConstraint(Sketcher.Constraint("Diameter", 0, 1.6))
sketch17.addConstraint(Sketcher.Constraint("DistanceX", -1, 1, 0, 3, 166.0))
sketch17.addConstraint(Sketcher.Constraint("DistanceX", -1, 1, 1, 3, 169.0))
sketch17.addConstraint(Sketcher.Constraint("DistanceX", -1, 1, 3, 3, 130.0))
sketch17.addConstraint(Sketcher.Constraint("DistanceX", -1, 1, 4, 3, 127.0))
sketch17.addConstraint(Sketcher.Constraint("DistanceX", -1, 1, 7, 3, 95.0))
sketch17.addConstraint(Sketcher.Constraint("DistanceX", -1, 1, 8, 3, 92.0))
sketch17.addConstraint(Sketcher.Constraint("DistanceX", -1, 1, 11, 3, 40.0))
sketch17.addConstraint(Sketcher.Constraint("DistanceY", -1, 1, 11, 3, 47.0))
sketch17.addConstraint(Sketcher.Constraint("DistanceY", -1, 1, 12, 3, 44.0))
sketch17.addConstraint(Sketcher.Constraint("DistanceY", 0, 3, 3, 3, 5.0))
sketch17.addConstraint(Sketcher.Constraint("DistanceY", 5, 3, 2, 3, 5.0))
sketch17.addConstraint(Sketcher.Constraint("DistanceY", -1, 1, 0, 3, 28.7))
sketch17.addConstraint(Sketcher.Constraint("DistanceY", -1, 1, 1, 3, 15.3))
pocket11 = doc.addObject("PartDesign::Pocket", "Pocket010")
body.addObject(pocket11)
pocket11.Profile = sketch17
pocket11.Type = "ThroughAll"
pocket11.Reversed = True

# Sketch on XY plane
sketch18 = doc.addObject("Sketcher::SketchObject", "Sketch017")
body.addObject(sketch18)
sketch18.AttachmentSupport = (doc.XY_Plane, [""])
sketch18.MapMode = "FlatFace"
sketch18.addGeometry(Part.Circle(V(0, 51, 0), V(0, 0, 1), 2.1), False)
sketch18.addGeometry(Part.Circle(V(25, 51, 0), V(0, 0, 1), 2.1), False)
sketch18.addGeometry(Part.Circle(V(-25, 51, 0), V(0, 0, 1), 2.1), False)
sketch18.addConstraint(Sketcher.Constraint("Equal", 0, 1))
sketch18.addConstraint(Sketcher.Constraint("Equal", 1, 2))
sketch18.addConstraint(Sketcher.Constraint("Symmetric", 1, 3, 2, 3, -2))
sketch18.addConstraint(Sketcher.Constraint("PointOnObject", 0, 3, -2))
sketch18.addConstraint(Sketcher.Constraint("Horizontal", 0, 3, 1, 3))
sketch18.addConstraint(Sketcher.Constraint("Diameter", 0, 4.2))
sketch18.addConstraint(Sketcher.Constraint("DistanceY", -1, 1, 0, 3, 51.0))
sketch18.addConstraint(Sketcher.Constraint("DistanceX", -1, 1, 1, 3, 25.0))
pocket12 = doc.addObject("PartDesign::Pocket", "Pocket011")
body.addObject(pocket12)
pocket12.Profile = sketch18
pocket12.Type = "ThroughAll"
pocket12.Reversed = True

# Sketch on XY plane
sketch19 = doc.addObject("Sketcher::SketchObject", "Sketch018")
body.addObject(sketch19)
sketch19.AttachmentSupport = (doc.XY_Plane, [""])
sketch19.MapMode = "FlatFace"
sketch19.addGeometry(Part.LineSegment(V(127, 75.534015, 0), V(127, 50.534015, 0)), False)
sketch19.addGeometry(Part.LineSegment(V(127, 50.534015, 0), V(77, 50.534015, 0)), False)
sketch19.addGeometry(Part.LineSegment(V(77, 50.534015, 0), V(77, 75.534015, 0)), False)
sketch19.addGeometry(Part.LineSegment(V(77, 75.534015, 0), V(127, 75.534015, 0)), False)
sketch19.addConstraint(Sketcher.Constraint("Coincident", 0, 2, 1, 1))
sketch19.addConstraint(Sketcher.Constraint("Coincident", 1, 2, 2, 1))
sketch19.addConstraint(Sketcher.Constraint("Coincident", 2, 2, 3, 1))
sketch19.addConstraint(Sketcher.Constraint("Coincident", 3, 2, 0, 1))
sketch19.addConstraint(Sketcher.Constraint("Vertical", 0))
sketch19.addConstraint(Sketcher.Constraint("Horizontal", 1))
sketch19.addConstraint(Sketcher.Constraint("Vertical", 2))
sketch19.addConstraint(Sketcher.Constraint("Horizontal", 3))
sketch19.addConstraint(Sketcher.Constraint("DistanceX", 1, 2, 1, 1, 50.0))
sketch19.addConstraint(Sketcher.Constraint("DistanceY", 0, 2, 0, 1, 25.0))
sketch19.addConstraint(Sketcher.Constraint("DistanceX", -1, 1, 0, 2, 127.0))
sketch19.addConstraint(Sketcher.Constraint("DistanceY", -1, 1, 0, 2, 50.534015))
pocket13 = doc.addObject("PartDesign::Pocket", "Pocket012")
body.addObject(pocket13)
pocket13.Profile = sketch19
pocket13.Type = "ThroughAll"
pocket13.Reversed = True
doc.recompute()

fillet7 = doc.addObject("PartDesign::Fillet", "Fillet006")
body.addObject(fillet7)
fillet7.Base = (pocket13, edges_at(pocket13, [
    (77, 75.534, 1.5),
    (77, 50.534, 1.5),
    (127, 50.534, 1.5),
    (127, 75.534, 1.5),
]))
fillet7.Radius = 3

# Sketch on XY plane
sketch20 = doc.addObject("Sketcher::SketchObject", "Sketch019")
body.addObject(sketch20)
sketch20.AttachmentSupport = (doc.XY_Plane, [""])
sketch20.MapMode = "FlatFace"
sketch20.addGeometry(Part.Circle(V(67, 115.736506, 0), V(0, 0, 1), 2.1), False)
sketch20.addGeometry(Part.Circle(V(29.412295, 102.0557, 0), V(0, 0, 1), 2.1), False)
sketch20.addGeometry(Part.Circle(V(-8.17541, 88.374894, 0), V(0, 0, 1), 2.1), False)
sketch20.addGeometry(Part.Circle(V(-45.763114, 74.694088, 0), V(0, 0, 1), 2.1), False)
sketch20.addGeometry(Part.Circle(V(-83.350819, 61.013283, 0), V(0, 0, 1), 2.1), False)
sketch20.addConstraint(Sketcher.Constraint("Equal", 0, 1))
sketch20.addConstraint(Sketcher.Constraint("Equal", 1, 2))
sketch20.addConstraint(Sketcher.Constraint("Equal", 2, 3))
sketch20.addConstraint(Sketcher.Constraint("Equal", 3, 4))
sketch20.addConstraint(Sketcher.Constraint("Diameter", 0, 4.2))
sketch20.addConstraint(Sketcher.Constraint("DistanceX", -1, 1, 0, 3, 67.0))
sketch20.addConstraint(Sketcher.Constraint("DistanceY", -1, 1, 1, 3, 102.0557))
sketch20.addConstraint(Sketcher.Constraint("DistanceX", 2, 3, -1, 1, 8.17541))
sketch20.addConstraint(Sketcher.Constraint("DistanceY", -1, 1, 3, 3, 74.694088))
sketch20.addConstraint(Sketcher.Constraint("DistanceX", 4, 3, -1, 1, 83.350819))
sketch20.addConstraint(Sketcher.Constraint("DistanceY", 2, 3, 0, 3, 27.361611))
sketch20.addConstraint(Sketcher.Constraint("DistanceX", 3, 3, 1, 3, 75.17541))
sketch20.addConstraint(Sketcher.Constraint("DistanceY", 4, 3, 2, 3, 27.361611))
sketch20.addConstraint(Sketcher.Constraint("DistanceY", -1, 1, 0, 3, 115.736506))
sketch20.addConstraint(Sketcher.Constraint("DistanceX", -1, 1, 1, 3, 29.412295))
pocket14 = doc.addObject("PartDesign::Pocket", "Pocket013")
body.addObject(pocket14)
pocket14.Profile = sketch20
pocket14.Type = "ThroughAll"
pocket14.Reversed = True

doc.recompute()
